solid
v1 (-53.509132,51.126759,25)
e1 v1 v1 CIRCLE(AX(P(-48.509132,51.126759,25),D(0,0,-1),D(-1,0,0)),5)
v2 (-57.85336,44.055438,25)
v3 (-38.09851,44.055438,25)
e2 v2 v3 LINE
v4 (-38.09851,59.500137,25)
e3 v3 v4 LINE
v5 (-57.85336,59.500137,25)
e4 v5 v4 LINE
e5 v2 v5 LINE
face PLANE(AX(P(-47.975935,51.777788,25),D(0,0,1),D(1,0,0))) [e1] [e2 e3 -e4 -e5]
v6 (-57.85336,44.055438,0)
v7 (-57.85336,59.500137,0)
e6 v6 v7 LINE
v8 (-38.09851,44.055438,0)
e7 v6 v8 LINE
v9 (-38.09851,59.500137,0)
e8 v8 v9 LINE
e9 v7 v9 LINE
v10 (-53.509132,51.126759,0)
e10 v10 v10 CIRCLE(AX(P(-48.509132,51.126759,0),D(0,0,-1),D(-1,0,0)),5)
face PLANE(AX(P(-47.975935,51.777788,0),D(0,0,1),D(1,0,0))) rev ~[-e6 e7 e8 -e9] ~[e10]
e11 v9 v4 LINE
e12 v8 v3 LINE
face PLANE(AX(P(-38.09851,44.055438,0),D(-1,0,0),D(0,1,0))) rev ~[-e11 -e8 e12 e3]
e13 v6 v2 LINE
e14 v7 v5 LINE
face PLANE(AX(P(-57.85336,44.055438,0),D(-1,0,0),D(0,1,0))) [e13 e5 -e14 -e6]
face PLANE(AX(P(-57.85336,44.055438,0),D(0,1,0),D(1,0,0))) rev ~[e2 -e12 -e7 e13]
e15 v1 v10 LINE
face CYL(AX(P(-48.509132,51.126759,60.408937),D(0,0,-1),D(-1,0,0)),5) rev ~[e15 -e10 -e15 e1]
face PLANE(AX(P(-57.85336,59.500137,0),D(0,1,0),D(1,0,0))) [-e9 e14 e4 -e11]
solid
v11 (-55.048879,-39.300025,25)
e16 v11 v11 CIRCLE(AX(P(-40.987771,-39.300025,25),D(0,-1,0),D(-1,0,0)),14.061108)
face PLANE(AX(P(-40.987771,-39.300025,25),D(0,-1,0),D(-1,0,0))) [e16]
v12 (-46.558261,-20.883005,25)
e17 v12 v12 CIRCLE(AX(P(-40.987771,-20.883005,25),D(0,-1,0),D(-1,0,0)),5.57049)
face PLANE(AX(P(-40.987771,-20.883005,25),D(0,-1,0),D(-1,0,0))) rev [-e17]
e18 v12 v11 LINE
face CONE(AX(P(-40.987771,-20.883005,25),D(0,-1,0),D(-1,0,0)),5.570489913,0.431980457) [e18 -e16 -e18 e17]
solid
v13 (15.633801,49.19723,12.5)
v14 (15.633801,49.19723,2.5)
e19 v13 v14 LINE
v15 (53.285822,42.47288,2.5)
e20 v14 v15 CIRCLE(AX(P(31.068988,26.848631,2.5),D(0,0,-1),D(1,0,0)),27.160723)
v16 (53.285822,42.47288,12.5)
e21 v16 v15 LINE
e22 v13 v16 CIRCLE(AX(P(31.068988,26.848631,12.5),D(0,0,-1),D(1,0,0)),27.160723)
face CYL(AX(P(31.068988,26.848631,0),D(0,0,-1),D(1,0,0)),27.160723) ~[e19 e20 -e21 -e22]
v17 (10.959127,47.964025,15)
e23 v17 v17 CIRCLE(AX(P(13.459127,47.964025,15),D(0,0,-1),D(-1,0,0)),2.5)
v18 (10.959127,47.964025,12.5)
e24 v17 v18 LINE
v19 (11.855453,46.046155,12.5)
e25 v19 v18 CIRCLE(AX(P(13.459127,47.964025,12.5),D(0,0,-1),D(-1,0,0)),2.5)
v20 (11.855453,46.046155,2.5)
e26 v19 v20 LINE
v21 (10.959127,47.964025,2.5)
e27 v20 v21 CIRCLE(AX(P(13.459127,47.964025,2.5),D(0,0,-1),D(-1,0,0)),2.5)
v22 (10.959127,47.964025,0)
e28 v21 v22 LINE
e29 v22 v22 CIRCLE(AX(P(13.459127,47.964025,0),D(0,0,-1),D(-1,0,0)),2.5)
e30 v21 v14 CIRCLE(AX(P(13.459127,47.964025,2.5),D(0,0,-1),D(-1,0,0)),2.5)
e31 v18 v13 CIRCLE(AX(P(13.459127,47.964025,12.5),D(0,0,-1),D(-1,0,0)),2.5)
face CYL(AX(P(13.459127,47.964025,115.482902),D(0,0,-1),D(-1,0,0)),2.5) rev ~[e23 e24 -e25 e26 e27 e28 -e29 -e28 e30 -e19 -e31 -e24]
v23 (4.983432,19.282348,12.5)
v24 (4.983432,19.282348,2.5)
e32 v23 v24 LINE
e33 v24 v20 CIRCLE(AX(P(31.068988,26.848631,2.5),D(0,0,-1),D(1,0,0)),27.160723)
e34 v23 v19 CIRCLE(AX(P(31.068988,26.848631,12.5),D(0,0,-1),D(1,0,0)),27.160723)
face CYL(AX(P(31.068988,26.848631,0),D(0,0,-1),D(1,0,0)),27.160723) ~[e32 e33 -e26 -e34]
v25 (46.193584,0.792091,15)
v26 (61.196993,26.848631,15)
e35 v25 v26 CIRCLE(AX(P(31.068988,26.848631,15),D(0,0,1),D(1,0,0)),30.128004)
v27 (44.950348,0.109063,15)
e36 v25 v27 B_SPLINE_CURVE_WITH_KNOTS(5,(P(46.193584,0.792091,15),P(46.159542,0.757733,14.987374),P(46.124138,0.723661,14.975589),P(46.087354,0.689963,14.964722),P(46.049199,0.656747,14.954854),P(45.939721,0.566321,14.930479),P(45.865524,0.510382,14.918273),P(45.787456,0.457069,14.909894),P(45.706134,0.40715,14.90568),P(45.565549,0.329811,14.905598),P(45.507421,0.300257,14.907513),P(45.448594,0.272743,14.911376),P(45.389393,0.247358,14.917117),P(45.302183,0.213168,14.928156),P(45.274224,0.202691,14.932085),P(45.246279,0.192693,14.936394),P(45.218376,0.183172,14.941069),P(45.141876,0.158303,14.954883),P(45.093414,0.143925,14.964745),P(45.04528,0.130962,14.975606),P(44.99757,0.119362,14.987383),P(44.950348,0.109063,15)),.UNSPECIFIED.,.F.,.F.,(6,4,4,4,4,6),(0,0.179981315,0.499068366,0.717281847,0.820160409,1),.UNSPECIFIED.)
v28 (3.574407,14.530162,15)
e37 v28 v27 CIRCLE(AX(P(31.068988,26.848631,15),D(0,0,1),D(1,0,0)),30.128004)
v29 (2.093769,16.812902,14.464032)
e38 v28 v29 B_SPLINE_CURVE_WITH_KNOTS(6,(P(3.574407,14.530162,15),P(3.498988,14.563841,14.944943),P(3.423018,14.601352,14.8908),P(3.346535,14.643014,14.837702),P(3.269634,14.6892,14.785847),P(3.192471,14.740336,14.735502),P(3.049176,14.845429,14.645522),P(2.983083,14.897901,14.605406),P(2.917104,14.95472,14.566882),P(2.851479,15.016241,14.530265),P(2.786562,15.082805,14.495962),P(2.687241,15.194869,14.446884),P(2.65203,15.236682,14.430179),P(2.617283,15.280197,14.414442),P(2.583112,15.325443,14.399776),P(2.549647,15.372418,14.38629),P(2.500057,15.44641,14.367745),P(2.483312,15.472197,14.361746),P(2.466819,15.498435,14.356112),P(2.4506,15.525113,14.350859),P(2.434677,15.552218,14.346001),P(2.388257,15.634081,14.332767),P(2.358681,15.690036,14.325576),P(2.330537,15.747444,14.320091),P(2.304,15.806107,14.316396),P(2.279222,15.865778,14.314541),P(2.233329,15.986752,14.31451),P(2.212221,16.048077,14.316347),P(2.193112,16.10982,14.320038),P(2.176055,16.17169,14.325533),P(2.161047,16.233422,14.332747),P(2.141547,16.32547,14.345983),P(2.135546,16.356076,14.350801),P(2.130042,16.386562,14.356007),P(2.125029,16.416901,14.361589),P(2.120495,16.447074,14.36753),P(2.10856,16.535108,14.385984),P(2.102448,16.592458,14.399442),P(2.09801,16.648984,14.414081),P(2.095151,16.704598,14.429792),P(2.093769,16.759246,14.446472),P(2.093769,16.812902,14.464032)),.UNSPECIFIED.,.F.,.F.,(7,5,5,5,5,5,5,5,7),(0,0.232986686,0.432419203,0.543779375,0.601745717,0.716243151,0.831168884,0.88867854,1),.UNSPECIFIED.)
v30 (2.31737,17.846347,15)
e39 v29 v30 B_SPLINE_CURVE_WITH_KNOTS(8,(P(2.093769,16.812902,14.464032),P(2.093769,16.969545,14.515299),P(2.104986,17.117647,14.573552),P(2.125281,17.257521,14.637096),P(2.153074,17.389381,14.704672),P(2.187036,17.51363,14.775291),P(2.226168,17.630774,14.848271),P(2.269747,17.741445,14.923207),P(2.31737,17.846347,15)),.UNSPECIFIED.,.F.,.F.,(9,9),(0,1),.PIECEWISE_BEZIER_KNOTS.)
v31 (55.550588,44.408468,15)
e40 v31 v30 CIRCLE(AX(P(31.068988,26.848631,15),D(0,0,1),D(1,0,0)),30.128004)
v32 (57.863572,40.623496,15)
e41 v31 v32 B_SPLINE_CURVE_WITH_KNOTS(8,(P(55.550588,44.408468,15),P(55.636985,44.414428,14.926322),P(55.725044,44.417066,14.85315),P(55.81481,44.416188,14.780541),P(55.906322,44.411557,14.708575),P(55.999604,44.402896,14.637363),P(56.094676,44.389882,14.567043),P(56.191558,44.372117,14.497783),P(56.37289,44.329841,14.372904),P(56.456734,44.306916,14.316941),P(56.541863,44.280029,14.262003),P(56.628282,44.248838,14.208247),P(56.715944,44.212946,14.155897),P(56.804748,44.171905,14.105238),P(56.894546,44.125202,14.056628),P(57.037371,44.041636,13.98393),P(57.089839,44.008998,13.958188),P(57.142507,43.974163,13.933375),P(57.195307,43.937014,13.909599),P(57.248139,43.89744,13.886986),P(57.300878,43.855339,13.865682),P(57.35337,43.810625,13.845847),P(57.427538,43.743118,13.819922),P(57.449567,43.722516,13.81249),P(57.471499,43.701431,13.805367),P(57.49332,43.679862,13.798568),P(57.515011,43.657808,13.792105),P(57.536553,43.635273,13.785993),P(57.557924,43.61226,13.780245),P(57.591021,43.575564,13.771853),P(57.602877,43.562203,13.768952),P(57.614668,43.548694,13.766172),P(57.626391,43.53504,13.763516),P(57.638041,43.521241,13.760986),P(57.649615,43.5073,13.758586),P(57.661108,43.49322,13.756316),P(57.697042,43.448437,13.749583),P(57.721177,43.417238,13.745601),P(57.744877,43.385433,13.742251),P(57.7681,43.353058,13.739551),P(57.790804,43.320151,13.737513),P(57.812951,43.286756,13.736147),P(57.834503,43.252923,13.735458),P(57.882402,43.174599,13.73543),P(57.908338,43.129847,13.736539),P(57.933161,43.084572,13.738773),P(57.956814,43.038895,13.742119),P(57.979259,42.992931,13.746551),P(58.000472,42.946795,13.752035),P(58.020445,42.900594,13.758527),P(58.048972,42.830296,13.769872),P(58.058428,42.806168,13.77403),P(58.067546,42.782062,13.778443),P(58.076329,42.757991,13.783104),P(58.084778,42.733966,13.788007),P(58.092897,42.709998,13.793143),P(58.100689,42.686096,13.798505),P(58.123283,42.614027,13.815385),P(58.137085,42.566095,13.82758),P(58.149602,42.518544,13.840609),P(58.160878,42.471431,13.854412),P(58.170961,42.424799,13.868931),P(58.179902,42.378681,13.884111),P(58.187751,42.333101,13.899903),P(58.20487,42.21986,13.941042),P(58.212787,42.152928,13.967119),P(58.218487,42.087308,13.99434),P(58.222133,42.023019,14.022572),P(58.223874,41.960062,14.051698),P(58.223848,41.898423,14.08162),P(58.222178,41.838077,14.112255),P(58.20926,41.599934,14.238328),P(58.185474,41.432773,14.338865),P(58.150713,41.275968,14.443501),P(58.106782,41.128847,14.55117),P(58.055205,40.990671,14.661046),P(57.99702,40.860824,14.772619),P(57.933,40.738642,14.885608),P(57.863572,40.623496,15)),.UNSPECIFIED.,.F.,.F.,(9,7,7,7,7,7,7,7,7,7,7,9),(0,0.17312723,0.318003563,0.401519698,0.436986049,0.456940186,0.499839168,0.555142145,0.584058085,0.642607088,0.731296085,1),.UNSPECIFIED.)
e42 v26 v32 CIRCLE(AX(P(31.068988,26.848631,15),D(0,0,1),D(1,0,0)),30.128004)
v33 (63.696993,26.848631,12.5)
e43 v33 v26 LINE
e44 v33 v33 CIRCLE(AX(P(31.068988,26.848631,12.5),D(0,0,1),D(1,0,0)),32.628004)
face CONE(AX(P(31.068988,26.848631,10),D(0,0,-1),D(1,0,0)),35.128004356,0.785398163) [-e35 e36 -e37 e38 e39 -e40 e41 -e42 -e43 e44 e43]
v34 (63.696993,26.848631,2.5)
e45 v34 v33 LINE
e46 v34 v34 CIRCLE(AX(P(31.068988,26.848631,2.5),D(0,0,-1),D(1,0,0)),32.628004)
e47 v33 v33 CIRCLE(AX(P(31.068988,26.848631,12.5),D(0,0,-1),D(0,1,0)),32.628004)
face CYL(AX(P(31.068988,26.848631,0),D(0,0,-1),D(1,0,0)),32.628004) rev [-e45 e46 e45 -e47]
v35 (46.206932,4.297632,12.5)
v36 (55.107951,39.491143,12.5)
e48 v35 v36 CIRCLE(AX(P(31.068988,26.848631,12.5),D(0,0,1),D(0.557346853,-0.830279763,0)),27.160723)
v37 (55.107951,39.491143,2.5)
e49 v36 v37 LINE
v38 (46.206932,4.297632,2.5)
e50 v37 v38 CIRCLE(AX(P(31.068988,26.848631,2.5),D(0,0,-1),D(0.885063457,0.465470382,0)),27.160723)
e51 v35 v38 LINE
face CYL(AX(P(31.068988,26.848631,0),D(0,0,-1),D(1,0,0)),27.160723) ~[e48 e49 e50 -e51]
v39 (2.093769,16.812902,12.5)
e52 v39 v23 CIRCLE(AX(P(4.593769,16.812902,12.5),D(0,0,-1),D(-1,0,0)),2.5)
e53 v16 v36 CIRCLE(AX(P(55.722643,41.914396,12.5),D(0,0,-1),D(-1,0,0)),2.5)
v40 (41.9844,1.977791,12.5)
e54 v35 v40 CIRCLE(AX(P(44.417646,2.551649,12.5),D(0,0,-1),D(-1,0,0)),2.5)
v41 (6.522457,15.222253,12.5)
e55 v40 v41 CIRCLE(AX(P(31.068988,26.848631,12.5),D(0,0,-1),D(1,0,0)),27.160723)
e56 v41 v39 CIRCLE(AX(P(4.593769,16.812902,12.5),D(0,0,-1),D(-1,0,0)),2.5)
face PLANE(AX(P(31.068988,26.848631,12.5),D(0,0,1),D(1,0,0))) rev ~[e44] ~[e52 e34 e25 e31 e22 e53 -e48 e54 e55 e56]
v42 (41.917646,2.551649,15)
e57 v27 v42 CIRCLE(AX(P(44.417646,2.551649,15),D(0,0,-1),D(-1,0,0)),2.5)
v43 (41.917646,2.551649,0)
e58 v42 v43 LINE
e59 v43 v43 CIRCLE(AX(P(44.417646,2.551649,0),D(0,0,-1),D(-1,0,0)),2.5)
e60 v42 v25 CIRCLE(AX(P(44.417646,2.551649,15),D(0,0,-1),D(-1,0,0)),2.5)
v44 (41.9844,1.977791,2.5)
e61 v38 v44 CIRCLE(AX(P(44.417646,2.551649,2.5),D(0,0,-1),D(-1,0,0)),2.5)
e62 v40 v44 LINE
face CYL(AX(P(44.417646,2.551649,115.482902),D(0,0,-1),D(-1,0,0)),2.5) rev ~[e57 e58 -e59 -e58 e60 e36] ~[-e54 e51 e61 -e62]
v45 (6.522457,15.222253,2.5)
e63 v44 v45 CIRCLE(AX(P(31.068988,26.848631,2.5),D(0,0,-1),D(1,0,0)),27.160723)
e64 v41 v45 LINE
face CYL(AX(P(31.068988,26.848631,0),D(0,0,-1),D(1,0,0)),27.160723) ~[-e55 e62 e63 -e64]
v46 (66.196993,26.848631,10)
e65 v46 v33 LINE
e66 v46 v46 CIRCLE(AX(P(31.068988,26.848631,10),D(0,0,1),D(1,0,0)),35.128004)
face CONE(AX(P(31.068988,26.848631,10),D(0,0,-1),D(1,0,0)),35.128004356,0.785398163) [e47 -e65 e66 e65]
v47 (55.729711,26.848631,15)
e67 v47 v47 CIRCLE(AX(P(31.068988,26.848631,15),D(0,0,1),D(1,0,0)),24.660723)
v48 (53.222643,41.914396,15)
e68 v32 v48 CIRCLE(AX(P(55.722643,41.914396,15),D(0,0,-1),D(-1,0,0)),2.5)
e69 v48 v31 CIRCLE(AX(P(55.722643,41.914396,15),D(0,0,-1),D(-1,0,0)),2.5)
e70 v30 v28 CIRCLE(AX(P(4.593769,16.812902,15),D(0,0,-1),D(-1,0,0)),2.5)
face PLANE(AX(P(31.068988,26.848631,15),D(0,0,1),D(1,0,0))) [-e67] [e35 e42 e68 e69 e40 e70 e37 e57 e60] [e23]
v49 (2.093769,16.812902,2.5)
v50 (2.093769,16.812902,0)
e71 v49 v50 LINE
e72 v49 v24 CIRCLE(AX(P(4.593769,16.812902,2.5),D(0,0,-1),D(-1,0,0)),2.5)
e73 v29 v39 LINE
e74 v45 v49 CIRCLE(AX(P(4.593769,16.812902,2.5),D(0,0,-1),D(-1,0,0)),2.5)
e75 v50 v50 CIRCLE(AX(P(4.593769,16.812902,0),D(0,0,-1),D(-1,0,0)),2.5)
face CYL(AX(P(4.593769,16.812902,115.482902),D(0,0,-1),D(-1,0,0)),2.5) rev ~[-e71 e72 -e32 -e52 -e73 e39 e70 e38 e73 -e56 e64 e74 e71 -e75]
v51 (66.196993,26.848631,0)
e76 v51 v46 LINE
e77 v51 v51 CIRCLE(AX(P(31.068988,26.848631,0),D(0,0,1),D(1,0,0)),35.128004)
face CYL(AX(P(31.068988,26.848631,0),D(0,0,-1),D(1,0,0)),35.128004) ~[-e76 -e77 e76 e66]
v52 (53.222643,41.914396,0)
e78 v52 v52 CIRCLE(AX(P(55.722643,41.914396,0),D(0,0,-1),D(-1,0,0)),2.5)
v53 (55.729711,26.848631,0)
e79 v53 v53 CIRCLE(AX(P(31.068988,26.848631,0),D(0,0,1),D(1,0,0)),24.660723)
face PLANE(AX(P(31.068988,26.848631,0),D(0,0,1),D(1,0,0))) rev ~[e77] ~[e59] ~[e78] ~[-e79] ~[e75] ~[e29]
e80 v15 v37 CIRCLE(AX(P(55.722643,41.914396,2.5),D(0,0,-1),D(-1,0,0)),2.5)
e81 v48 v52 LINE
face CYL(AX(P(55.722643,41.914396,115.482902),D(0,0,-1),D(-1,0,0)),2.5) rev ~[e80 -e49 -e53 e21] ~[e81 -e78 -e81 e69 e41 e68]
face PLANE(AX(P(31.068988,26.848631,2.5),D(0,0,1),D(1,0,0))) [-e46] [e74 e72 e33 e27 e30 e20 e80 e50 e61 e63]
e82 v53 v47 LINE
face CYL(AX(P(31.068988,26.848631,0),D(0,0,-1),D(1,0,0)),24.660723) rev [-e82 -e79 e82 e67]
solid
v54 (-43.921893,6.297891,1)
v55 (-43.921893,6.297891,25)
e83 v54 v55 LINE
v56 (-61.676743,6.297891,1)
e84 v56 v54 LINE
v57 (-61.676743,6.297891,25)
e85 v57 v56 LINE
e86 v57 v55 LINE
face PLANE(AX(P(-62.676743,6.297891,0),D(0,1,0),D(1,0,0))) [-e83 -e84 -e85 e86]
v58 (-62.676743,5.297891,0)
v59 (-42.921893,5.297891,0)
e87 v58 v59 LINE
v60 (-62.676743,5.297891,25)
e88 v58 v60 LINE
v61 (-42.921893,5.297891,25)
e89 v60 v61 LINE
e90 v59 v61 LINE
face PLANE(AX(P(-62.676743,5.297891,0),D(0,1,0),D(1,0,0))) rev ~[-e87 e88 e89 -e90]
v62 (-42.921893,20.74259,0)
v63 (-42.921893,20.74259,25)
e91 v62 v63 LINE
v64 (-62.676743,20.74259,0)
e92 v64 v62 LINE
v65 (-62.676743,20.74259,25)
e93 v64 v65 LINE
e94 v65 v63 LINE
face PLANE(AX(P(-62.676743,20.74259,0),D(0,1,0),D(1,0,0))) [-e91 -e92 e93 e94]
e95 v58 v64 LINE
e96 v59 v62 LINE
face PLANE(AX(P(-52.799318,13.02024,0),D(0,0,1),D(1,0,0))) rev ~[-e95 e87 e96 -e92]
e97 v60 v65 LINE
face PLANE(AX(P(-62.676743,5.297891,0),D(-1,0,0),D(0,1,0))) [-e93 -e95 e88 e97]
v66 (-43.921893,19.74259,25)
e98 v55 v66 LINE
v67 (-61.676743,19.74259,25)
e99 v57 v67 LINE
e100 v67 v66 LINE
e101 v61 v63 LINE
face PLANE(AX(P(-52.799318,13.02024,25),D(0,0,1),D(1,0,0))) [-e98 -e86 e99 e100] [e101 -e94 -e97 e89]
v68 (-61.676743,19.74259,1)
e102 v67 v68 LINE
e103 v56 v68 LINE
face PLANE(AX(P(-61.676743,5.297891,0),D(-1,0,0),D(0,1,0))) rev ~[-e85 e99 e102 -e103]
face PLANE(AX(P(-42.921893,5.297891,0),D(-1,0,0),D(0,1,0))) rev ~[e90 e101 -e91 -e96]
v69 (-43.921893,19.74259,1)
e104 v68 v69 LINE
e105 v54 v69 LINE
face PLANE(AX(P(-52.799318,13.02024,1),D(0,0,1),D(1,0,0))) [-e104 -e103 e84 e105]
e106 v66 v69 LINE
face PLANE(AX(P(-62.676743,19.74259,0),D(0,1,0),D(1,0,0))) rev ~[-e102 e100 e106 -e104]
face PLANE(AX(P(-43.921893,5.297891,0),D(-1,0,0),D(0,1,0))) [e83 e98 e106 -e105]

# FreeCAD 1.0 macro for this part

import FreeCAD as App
import Part
import Sketcher
Q = App.Units.Quantity


def edges_at(feature, points):
    """Names of the edges that pass closest to the given points."""
    edges = feature.Shape.Edges
    near = lambda p: min(range(len(edges)), key=lambda i: edges[i].distToShape(Part.Vertex(*p))[0])
    return sorted({f"Edge{near(p) + 1}" for p in points})


def faces_at(feature, points):
    """Names of the faces that lie closest to the given points."""
    faces = feature.Shape.Faces
    near = lambda p: min(range(len(faces)), key=lambda i: faces[i].distToShape(Part.Vertex(*p))[0])
    return sorted({f"Face{near(p) + 1}" for p in points})

doc = App.newDocument("Part")
body = doc.addObject("PartDesign::Body", "Body")

# Sketch on XY plane
sketch1 = body.newObject("Sketcher::SketchObject", "Sketch")
sketch1.AttachmentSupport = (doc.getObject("XY_Plane"), [""])
sketch1.MapMode = "FlatFace"
sketch1.addGeometry([
    Part.Circle(App.Vector(31, 27, 0), App.Vector(0, 0, 1), 35),
    Part.Circle(App.Vector(31, 27, 0), App.Vector(0, 0, 1), 25),
], False)
sketch1.addConstraint([
    Sketcher.Constraint("Coincident", 1, 3, 0, 3),
    Sketcher.Constraint("Diameter", 0, Q("70.256009 mm")),
    Sketcher.Constraint("Diameter", 1, Q("49.321446 mm")),
    Sketcher.Constraint("DistanceX", -1, 1, 0, 3, Q("31.068988 mm")),
    Sketcher.Constraint("DistanceY", -1, 1, 0, 3, Q("26.848631 mm")),
])
pad1 = body.newObject("PartDesign::Pad", "Pad")
pad1.Profile = sketch1
pad1.Length = 15
doc.recompute()

chamfer = body.newObject("PartDesign::Chamfer", "Chamfer")
chamfer.Base = (pad1, edges_at(pad1, [(-4.059, 26.849, 15)]))
chamfer.Size = 5
doc.recompute()

thickness = body.newObject("PartDesign::Thickness", "Thickness")
thickness.Base = (chamfer, faces_at(chamfer, [(-1.559, 26.849, 12.5)]))
thickness.Value = 2.5
thickness.Reversed = True
thickness.Join = "Arc"

# Sketch on XY plane
sketch2 = body.newObject("Sketcher::SketchObject", "Sketch001")
sketch2.AttachmentSupport = (doc.getObject("XY_Plane"), [""])
sketch2.MapMode = "FlatFace"
sketch2.AttachmentOffset = App.Placement(App.Vector(0, 0, 15), App.Rotation())
sketch2.addGeometry([
    Part.Circle(App.Vector(55.7, 41.9, 0), App.Vector(0, 0, 1), 2.5),
    Part.Circle(App.Vector(13.5, 48, 0), App.Vector(0, 0, 1), 2.5),
    Part.Circle(App.Vector(4.6, 16.8, 0), App.Vector(0, 0, 1), 2.5),
    Part.Circle(App.Vector(44.4, 2.6, 0), App.Vector(0, 0, 1), 2.5),
], False)
sketch2.addConstraint([
    Sketcher.Constraint("Equal", 0, 1),
    Sketcher.Constraint("Equal", 1, 2),
    Sketcher.Constraint("Equal", 2, 3),
    Sketcher.Constraint("Diameter", 0, Q("5 mm")),
    Sketcher.Constraint("DistanceY", -1, 1, 2, 3, Q("16.812902 mm")),
    Sketcher.Constraint("DistanceX", -1, 1, 2, 3, Q("4.593769 mm")),
    Sketcher.Constraint("DistanceY", -1, 1, 3, 3, Q("2.551649 mm")),
    Sketcher.Constraint("DistanceY", 0, 3, 1, 3, Q("6.049629 mm")),
    Sketcher.Constraint("DistanceX", 2, 3, 1, 3, Q("8.865358 mm")),
    Sketcher.Constraint("DistanceX", 1, 3, 3, 3, Q("30.958518 mm")),
    Sketcher.Constraint("DistanceX", -1, 1, 0, 3, Q("55.722643 mm")),
    Sketcher.Constraint("DistanceY", -1, 1, 0, 3, Q("41.914396 mm")),
])
doc.recompute()
hole = body.newObject("PartDesign::Hole", "Hole")
hole.Profile = sketch2
hole.ThreadType = "None"
hole.Diameter = 5
hole.DepthType = "ThroughAll"
body2 = doc.addObject("PartDesign::Body", "Body001")

# Sketch on XY plane
sketch3 = body2.newObject("Sketcher::SketchObject", "Sketch002")
sketch3.AttachmentSupport = (doc.getObject("XY_Plane001"), [""])
sketch3.MapMode = "FlatFace"
sketch3.addGeometry([
    Part.LineSegment(App.Vector(-63, 21, 0), App.Vector(-63, 5, 0)),
    Part.LineSegment(App.Vector(-63, 5, 0), App.Vector(-43, 5, 0)),
    Part.LineSegment(App.Vector(-43, 5, 0), App.Vector(-43, 21, 0)),
    Part.LineSegment(App.Vector(-43, 21, 0), App.Vector(-63, 21, 0)),
], False)
sketch3.addConstraint([
    Sketcher.Constraint("Coincident", 0, 2, 1, 1),
    Sketcher.Constraint("Coincident", 1, 2, 2, 1),
    Sketcher.Constraint("Coincident", 2, 2, 3, 1),
    Sketcher.Constraint("Coincident", 3, 2, 0, 1),
    Sketcher.Constraint("Vertical", 0),
    Sketcher.Constraint("Horizontal", 1),
    Sketcher.Constraint("Vertical", 2),
    Sketcher.Constraint("Horizontal", 3),
    Sketcher.Constraint("DistanceY", 0, 2, 0, 1, Q("15.444699 mm")),
    Sketcher.Constraint("DistanceX", 1, 1, 1, 2, Q("19.754849 mm")),
    Sketcher.Constraint("DistanceY", -1, 1, 0, 2, Q("5.297891 mm")),
    Sketcher.Constraint("DistanceX", 0, 2, -1, 1, Q("62.676743 mm")),
])
pad2 = body2.newObject("PartDesign::Pad", "Pad001")
pad2.Profile = sketch3
pad2.Length = 25
doc.recompute()

thickness2 = body2.newObject("PartDesign::Thickness", "Thickness001")
thickness2.Base = (pad2, faces_at(pad2, [(-52.799, 13.02, 25)]))
thickness2.Value = 1
thickness2.Reversed = True
thickness2.Join = "Arc"
body3 = doc.addObject("PartDesign::Body", "Body002")

# Sketch on XY plane
sketch4 = body3.newObject("Sketcher::SketchObject", "Sketch003")
sketch4.AttachmentSupport = (doc.getObject("XY_Plane002"), [""])
sketch4.MapMode = "FlatFace"
sketch4.addGeometry([
    Part.LineSegment(App.Vector(-58, 60, 0), App.Vector(-58, 44, 0)),
    Part.LineSegment(App.Vector(-58, 44, 0), App.Vector(-38, 44, 0)),
    Part.LineSegment(App.Vector(-38, 44, 0), App.Vector(-38, 60, 0)),
    Part.LineSegment(App.Vector(-38, 60, 0), App.Vector(-58, 60, 0)),
], False)
sketch4.addConstraint([
    Sketcher.Constraint("Coincident", 0, 2, 1, 1),
    Sketcher.Constraint("Coincident", 1, 2, 2, 1),
    Sketcher.Constraint("Coincident", 2, 2, 3, 1),
    Sketcher.Constraint("Coincident", 3, 2, 0, 1),
    Sketcher.Constraint("Vertical", 0),
    Sketcher.Constraint("Horizontal", 1),
    Sketcher.Constraint("Vertical", 2),
    Sketcher.Constraint("Horizontal", 3),
    Sketcher.Constraint("DistanceY", 0, 2, 0, 1, Q("15.444699 mm")),
    Sketcher.Constraint("DistanceX", 1, 1, 1, 2, Q("19.754849 mm")),
    Sketcher.Constraint("DistanceX", 0, 2, -1, 1, Q("57.85336 mm")),
    Sketcher.Constraint("DistanceY", -1, 1, 0, 2, Q("44.055438 mm")),
])
pad3 = body3.newObject("PartDesign::Pad", "Pad002")
pad3.Profile = sketch4
pad3.Length = 25

# Sketch on XY plane
sketch5 = body3.newObject("Sketcher::SketchObject", "Sketch004")
sketch5.AttachmentSupport = (doc.getObject("XY_Plane002"), [""])
sketch5.MapMode = "FlatFace"
sketch5.AttachmentOffset = App.Placement(App.Vector(0, 0, 25), App.Rotation())
sketch5.addGeometry(Part.Circle(App.Vector(-49, 51, 0), App.Vector(0, 0, 1), 5), False)
sketch5.addConstraint([
    Sketcher.Constraint("Diameter", 0, Q("10 mm")),
    Sketcher.Constraint("DistanceY", -1, 1, 0, 3, Q("51.126759 mm")),
    Sketcher.Constraint("DistanceX", 0, 3, -1, 1, Q("48.509132 mm")),
])
doc.recompute()
hole2 = body3.newObject("PartDesign::Hole", "Hole001")
hole2.Profile = sketch5
hole2.ThreadType = "None"
hole2.Diameter = 10
hole2.DepthType = "ThroughAll"
body4 = doc.addObject("PartDesign::Body", "Body003")

# Sketch on XY plane
sketch6 = body4.newObject("Sketcher::SketchObject", "Sketch005")
sketch6.AttachmentSupport = (doc.getObject("XY_Plane003"), [""])
sketch6.MapMode = "FlatFace"
sketch6.AttachmentOffset = App.Placement(App.Vector(0, 0, 25), App.Rotation())
sketch6.addGeometry([
    Part.LineSegment(App.Vector(-41, -21, 0), App.Vector(-47, -21, 0)),
    Part.LineSegment(App.Vector(-47, -21, 0), App.Vector(-55, -39, 0)),
    Part.LineSegment(App.Vector(-55, -39, 0), App.Vector(-41, -39, 0)),
    Part.LineSegment(App.Vector(-41, -39, 0), App.Vector(-41, -21, 0)),
], False)
sketch6.addGeometry(Part.LineSegment(App.Vector(-41, -21, 0), App.Vector(-41, -39, 0)), True)  # axis
sketch6.addConstraint([
    Sketcher.Constraint("Coincident", 0, 2, 1, 1),
    Sketcher.Constraint("Coincident", 1, 2, 2, 1),
    Sketcher.Constraint("Coincident", 2, 2, 3, 1),
    Sketcher.Constraint("Coincident", 3, 2, 0, 1),
    Sketcher.Constraint("Horizontal", 0),
    Sketcher.Constraint("Horizontal", 2),
    Sketcher.Constraint("Vertical", 3),
    Sketcher.Constraint("Vertical", 4),
    Sketcher.Constraint("Coincident", 4, 1, 3, 2),
    Sketcher.Constraint("Horizontal", 1, 2, 4, 2),
    Sketcher.Constraint("DistanceX", 0, 2, 0, 1, Q("5.57049 mm")),
    Sketcher.Constraint("DistanceX", 2, 1, 2, 2, Q("14.061108 mm")),
    Sketcher.Constraint("DistanceY", 3, 1, 3, 2, Q("18.417019 mm")),
    Sketcher.Constraint("DistanceX", 0, 2, -1, 1, Q("46.558261 mm")),
    Sketcher.Constraint("DistanceY", 0, 2, -1, 1, Q("20.883005 mm")),
])
revolution = body4.newObject("PartDesign::Revolution", "Revolution")
revolution.Profile = sketch6
revolution.ReferenceAxis = (sketch6, ["Axis0"])
revolution.Angle = 360

doc.recompute()
